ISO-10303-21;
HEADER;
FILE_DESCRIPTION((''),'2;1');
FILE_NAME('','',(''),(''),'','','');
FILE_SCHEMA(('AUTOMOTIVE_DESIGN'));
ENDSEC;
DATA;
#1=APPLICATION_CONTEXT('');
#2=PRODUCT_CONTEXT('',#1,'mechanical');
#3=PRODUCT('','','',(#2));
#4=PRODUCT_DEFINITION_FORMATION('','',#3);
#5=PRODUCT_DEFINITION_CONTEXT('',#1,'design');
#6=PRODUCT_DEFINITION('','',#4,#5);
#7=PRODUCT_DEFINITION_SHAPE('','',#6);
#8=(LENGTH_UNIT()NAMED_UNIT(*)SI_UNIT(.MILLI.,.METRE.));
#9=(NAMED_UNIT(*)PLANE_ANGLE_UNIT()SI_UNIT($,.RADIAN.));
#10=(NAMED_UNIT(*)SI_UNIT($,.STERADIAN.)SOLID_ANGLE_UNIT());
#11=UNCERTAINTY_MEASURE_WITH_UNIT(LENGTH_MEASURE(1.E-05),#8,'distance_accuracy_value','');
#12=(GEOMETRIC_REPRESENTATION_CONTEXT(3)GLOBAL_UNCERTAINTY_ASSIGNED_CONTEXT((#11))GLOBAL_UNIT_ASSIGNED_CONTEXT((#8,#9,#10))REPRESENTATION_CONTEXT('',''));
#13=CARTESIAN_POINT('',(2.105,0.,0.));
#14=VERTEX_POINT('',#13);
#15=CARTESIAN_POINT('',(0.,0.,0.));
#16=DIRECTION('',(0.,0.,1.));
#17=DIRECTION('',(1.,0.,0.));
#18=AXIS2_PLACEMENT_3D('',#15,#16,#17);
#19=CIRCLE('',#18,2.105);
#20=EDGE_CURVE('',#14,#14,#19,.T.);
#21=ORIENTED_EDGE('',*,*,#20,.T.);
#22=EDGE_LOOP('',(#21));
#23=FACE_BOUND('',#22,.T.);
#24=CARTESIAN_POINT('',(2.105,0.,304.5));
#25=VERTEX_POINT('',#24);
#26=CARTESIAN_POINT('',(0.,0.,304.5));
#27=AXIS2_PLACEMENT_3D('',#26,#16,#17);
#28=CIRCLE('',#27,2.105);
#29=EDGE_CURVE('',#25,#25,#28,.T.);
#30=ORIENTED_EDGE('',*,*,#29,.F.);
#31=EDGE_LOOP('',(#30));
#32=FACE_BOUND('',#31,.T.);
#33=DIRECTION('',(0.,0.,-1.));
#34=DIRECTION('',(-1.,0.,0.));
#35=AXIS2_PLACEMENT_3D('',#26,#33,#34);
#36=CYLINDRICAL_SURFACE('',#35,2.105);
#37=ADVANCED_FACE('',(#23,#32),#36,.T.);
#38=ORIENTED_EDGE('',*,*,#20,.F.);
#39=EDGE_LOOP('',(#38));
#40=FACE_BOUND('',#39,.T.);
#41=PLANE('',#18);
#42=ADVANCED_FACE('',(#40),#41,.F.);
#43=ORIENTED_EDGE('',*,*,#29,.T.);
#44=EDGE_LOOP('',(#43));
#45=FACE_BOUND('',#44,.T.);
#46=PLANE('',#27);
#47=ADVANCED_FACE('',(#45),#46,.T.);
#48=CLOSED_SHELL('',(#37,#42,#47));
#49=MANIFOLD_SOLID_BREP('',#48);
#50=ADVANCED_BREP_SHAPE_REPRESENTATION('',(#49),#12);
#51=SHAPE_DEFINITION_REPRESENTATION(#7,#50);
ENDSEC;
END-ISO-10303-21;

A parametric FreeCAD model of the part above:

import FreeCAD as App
import Part
import Sketcher

doc = App.newDocument("Part")
body = doc.addObject("PartDesign::Body", "Body")

# Sketch on XY plane
sketch1 = doc.addObject("Sketcher::SketchObject", "Sketch")
body.addObject(sketch1)
sketch1.AttachmentSupport = (doc.XY_Plane, [""])
sketch1.MapMode = "FlatFace"
sketch1.addGeometry(Part.Circle(App.Vector(0, 0, 0), App.Vector(0, 0, 1), 2.105), False)
sketch1.addConstraint([
    Sketcher.Constraint("Coincident", 0, 3, -1, 1),
    Sketcher.Constraint("Diameter", 0, 4.21),
])
pad1 = doc.addObject("PartDesign::Pad", "Pad")
body.addObject(pad1)
pad1.Profile = sketch1
pad1.Length = 304.5

doc.recompute()
